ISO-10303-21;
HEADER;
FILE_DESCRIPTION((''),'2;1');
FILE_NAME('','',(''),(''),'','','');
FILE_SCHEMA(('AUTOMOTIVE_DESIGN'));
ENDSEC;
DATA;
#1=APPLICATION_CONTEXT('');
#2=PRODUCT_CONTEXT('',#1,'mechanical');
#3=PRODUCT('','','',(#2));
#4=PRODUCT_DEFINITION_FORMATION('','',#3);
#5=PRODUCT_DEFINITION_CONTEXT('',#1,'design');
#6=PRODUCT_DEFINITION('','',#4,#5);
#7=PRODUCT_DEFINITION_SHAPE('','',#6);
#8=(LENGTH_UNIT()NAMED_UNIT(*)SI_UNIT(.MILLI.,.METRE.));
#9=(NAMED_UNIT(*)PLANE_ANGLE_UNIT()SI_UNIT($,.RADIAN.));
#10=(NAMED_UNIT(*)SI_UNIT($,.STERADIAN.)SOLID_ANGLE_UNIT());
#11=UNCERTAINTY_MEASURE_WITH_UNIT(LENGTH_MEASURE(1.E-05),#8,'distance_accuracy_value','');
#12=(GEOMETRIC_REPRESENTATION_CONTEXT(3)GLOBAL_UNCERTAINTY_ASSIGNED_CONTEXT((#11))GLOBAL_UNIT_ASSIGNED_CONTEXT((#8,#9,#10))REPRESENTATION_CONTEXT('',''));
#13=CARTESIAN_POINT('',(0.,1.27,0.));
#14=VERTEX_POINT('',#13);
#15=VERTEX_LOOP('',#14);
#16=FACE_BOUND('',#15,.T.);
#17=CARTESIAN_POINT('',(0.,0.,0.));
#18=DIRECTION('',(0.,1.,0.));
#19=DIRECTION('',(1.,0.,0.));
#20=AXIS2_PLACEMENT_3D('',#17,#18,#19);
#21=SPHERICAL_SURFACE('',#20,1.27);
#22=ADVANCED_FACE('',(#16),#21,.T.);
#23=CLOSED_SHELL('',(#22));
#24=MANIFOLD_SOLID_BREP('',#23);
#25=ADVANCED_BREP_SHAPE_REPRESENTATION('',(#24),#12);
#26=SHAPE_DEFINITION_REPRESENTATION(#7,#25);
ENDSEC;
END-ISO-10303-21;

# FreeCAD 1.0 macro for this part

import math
import FreeCAD as App
import Part
import Sketcher
Q = App.Units.Quantity

doc = App.newDocument("Part")
body = doc.addObject("PartDesign::Body", "Body")

sketch1 = body.newObject("Sketcher::SketchObject", "Sketch")
sketch1.AttachmentSupport = (doc.getObject("XY_Plane"), [""])
sketch1.MapMode = "FlatFace"
sketch1.addGeometry([
    Part.LineSegment(App.Vector(0, 1.3, 0), App.Vector(0, -1.3, 0)),
    Part.ArcOfCircle(Part.Circle(App.Vector(0, 0, 0), App.Vector(0, 0, 1), 1.3), math.radians(-90), math.radians(90)),
], False)
sketch1.addConstraint([
    Sketcher.Constraint("Coincident", 0, 1, 1, 2),
    Sketcher.Constraint("Coincident", 1, 1, 0, 2),
    Sketcher.Constraint("Vertical", 0),
    Sketcher.Constraint("Coincident", 1, 3, -1, 1),
    Sketcher.Constraint("PointOnObject", 0, 1, -2),
    Sketcher.Constraint("Radius", 1, Q("0.05 in")),
])
revolution = body.newObject("PartDesign::Revolution", "Revolution")
revolution.Profile = sketch1
revolution.ReferenceAxis = (sketch1, ["V_Axis"])
revolution.Angle = 360

doc.recompute()
